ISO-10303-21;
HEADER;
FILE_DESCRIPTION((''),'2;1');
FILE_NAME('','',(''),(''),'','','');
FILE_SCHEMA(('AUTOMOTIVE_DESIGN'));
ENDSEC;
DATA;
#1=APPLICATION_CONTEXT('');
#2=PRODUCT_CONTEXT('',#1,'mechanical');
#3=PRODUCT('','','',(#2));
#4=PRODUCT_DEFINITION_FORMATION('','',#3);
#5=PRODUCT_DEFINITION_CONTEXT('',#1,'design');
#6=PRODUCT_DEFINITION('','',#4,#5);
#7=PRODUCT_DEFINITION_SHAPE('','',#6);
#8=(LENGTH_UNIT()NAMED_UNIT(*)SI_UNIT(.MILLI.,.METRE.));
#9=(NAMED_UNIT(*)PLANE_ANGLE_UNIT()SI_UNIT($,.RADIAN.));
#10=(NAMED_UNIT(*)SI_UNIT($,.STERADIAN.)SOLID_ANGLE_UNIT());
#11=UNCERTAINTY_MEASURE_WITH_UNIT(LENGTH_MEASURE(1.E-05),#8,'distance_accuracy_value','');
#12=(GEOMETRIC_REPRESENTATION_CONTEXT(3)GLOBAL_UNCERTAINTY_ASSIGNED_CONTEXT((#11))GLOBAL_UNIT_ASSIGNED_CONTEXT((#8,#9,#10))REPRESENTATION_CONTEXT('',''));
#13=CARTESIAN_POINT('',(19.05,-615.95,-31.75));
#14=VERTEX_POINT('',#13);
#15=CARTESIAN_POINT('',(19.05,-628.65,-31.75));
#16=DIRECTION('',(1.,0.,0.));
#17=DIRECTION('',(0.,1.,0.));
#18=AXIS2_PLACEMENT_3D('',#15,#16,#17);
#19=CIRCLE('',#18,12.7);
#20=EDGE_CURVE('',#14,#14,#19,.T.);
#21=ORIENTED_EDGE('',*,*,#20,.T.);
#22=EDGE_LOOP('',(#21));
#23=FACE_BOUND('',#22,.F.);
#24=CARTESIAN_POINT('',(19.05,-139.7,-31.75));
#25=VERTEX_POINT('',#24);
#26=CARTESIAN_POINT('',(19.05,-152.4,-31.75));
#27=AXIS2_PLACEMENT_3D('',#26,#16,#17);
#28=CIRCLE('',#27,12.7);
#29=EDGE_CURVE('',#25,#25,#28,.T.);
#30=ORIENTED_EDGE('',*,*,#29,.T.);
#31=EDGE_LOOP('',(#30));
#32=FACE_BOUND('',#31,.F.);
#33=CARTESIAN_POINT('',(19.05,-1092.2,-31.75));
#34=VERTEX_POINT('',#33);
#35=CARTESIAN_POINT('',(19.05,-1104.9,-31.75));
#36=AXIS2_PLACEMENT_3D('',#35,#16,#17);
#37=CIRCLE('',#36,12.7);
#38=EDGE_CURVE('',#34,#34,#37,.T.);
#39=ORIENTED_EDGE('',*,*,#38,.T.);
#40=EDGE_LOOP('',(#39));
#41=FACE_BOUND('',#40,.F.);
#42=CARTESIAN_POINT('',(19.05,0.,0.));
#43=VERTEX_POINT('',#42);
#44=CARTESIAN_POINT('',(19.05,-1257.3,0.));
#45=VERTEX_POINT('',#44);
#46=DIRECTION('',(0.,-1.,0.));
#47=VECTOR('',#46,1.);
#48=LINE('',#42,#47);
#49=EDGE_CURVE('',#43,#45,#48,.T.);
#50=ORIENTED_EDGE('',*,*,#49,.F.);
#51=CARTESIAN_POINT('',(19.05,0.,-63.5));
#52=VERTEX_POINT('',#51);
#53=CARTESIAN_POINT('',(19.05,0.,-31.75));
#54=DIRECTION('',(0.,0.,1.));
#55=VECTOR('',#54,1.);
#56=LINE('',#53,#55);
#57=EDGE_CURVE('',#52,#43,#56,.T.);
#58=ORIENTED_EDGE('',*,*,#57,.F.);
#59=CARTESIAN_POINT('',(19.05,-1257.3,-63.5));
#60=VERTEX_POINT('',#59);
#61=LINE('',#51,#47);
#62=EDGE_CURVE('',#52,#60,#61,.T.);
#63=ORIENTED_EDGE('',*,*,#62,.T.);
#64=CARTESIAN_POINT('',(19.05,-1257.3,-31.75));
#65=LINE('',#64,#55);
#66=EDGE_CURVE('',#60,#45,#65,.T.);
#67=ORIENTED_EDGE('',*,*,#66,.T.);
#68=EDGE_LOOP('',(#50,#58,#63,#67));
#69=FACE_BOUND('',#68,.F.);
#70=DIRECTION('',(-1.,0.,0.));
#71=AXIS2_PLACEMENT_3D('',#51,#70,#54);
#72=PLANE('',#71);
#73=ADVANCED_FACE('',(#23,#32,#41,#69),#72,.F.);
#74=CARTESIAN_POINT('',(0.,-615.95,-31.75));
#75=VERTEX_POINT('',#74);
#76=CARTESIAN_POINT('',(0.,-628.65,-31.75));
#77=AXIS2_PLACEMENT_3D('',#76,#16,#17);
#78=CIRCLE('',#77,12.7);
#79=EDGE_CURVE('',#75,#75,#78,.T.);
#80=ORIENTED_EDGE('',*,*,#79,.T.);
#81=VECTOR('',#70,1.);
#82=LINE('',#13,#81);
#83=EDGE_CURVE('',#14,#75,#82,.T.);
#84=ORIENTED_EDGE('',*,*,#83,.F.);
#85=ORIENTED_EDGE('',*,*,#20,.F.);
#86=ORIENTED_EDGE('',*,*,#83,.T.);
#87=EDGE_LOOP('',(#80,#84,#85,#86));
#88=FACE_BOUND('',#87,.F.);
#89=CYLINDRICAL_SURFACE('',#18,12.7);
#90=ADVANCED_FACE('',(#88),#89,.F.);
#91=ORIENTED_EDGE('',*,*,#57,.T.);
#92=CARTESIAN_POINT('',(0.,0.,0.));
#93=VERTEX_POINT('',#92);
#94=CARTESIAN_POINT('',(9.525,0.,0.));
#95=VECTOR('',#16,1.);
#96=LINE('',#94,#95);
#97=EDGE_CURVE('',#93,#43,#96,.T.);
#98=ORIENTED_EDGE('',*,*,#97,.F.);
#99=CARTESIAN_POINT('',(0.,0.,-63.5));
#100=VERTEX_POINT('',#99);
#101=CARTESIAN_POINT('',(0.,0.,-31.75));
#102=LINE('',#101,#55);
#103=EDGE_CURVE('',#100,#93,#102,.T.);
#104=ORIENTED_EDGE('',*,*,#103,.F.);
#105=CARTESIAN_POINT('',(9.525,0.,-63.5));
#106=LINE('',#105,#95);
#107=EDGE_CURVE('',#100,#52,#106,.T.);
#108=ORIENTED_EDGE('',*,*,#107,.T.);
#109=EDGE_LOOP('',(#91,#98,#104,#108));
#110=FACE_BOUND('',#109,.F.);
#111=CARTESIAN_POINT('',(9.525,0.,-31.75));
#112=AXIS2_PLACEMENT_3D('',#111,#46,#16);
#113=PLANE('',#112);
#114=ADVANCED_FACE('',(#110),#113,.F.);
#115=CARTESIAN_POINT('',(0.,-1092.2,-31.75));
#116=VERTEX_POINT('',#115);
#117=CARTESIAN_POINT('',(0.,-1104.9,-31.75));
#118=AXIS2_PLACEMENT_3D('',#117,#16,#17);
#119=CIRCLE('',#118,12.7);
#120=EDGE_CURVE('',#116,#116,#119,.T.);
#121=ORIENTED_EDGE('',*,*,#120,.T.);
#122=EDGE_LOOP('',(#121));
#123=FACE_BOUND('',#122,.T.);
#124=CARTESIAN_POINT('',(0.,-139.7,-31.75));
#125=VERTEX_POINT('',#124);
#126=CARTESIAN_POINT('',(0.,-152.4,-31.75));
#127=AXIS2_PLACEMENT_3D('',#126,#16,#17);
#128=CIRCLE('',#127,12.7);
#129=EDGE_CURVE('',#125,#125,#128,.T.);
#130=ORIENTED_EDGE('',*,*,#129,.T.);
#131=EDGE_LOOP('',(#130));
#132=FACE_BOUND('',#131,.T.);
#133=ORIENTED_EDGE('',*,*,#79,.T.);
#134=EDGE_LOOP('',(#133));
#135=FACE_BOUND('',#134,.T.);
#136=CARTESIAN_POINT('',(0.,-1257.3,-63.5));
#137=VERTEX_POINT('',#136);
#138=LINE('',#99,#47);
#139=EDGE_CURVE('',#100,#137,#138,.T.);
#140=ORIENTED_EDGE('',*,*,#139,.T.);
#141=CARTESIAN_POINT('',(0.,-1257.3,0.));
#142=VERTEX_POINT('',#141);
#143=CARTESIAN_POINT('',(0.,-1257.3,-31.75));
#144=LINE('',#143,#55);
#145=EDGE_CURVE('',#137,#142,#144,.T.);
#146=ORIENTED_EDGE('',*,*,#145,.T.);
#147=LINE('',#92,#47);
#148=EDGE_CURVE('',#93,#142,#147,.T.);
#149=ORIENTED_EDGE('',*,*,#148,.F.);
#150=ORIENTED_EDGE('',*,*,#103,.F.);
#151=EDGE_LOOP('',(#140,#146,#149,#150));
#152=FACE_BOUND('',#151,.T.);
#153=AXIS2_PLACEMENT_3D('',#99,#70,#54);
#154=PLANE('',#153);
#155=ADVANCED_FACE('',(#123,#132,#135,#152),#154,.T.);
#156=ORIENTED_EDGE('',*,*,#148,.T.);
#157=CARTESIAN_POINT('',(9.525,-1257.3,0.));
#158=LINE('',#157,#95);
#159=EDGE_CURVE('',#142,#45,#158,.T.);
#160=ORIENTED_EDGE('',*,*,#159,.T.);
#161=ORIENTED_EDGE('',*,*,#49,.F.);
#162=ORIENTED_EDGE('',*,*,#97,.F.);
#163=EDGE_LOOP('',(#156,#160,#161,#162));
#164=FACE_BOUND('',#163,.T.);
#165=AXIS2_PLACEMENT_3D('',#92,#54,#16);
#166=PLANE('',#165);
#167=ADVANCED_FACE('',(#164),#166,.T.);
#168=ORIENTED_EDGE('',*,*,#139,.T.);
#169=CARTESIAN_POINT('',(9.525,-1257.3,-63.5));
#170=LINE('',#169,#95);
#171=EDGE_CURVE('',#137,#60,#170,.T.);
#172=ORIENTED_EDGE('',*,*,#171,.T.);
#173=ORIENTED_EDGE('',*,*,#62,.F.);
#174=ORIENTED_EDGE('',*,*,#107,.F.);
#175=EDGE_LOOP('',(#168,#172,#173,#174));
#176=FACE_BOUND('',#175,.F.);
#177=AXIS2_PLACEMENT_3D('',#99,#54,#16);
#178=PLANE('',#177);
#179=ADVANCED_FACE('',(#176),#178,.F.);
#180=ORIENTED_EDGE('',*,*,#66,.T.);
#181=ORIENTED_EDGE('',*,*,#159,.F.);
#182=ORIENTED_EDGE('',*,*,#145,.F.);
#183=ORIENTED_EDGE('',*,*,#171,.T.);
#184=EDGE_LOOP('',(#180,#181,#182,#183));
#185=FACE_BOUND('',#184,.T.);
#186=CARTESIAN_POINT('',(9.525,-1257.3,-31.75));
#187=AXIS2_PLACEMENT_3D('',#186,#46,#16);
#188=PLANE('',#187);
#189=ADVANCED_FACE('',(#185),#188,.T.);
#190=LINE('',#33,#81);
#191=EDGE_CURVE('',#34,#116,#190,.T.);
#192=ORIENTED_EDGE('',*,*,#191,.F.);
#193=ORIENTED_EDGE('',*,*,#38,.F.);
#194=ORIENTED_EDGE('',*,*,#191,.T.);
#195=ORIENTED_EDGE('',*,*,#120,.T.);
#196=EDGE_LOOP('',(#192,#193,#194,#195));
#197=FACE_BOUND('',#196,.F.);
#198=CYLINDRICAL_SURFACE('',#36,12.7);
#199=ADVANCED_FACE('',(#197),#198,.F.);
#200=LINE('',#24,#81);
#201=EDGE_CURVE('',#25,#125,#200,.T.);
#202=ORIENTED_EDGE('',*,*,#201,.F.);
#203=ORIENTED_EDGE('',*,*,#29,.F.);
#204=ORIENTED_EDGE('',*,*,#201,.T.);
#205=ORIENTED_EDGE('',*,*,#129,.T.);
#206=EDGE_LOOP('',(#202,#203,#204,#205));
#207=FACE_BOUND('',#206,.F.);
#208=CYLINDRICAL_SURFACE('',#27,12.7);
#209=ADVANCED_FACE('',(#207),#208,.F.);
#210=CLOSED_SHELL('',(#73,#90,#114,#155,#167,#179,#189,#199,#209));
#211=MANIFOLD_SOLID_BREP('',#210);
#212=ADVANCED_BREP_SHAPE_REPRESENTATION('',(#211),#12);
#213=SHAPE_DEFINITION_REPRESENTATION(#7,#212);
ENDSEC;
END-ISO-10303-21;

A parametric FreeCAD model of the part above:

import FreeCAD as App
import Part
import Sketcher
from FreeCAD import Vector
Q = App.Units.Quantity


def add_polygon(sketch, points):
    """Adds a closed chain of lines whose ends are joined by coincident constraints."""
    first, n = sketch.GeometryCount, len(points)
    for a, b in zip(points, points[1:] + points[:1]):
        sketch.addGeometry(Part.LineSegment(App.Vector(*a, 0), App.Vector(*b, 0)), False)
    for i in range(n):
        sketch.addConstraint(Sketcher.Constraint("Coincident", first + i, 2, first + (i + 1) % n, 1))

doc = App.newDocument("Part")
body = doc.addObject("PartDesign::Body", "Body")

# Sketch on XZ plane
sketch1 = body.newObject("Sketcher::SketchObject", "Sketch")
sketch1.AttachmentSupport = (doc.getObject("XZ_Plane"), [""])
sketch1.MapMode = "FlatFace"
add_polygon(sketch1, [(0, 0), (0, -64), (19, -64), (19, 0)])  # lines 0-3
sketch1.addConstraint([
    Sketcher.Constraint("Vertical", 0),
    Sketcher.Constraint("Horizontal", 1),
    Sketcher.Constraint("Vertical", 2),
    Sketcher.Constraint("Horizontal", 3),
    Sketcher.Constraint("Coincident", 3, 2, -1, 1),
    Sketcher.Constraint("DistanceY", 0, 2, 0, 1, Q("2.5 in")),
    Sketcher.Constraint("DistanceX", 1, 1, 1, 2, Q("0.75 in")),
])
pad1 = body.newObject("PartDesign::Pad", "Pad")
pad1.Profile = sketch1
pad1.Length = Q("49.5 in")

# Sketch on YZ plane
sketch2 = body.newObject("Sketcher::SketchObject", "Sketch001")
sketch2.AttachmentSupport = (doc.getObject("YZ_Plane"), [""])
sketch2.MapMode = "FlatFace"
sketch2.AttachmentOffset = App.Placement(Vector(0, 0, 0.75 * 25.4), App.Rotation())
sketch2.addGeometry([
    Part.Circle(Vector(-1105, -32, 0), Vector(0, 0, 1), 13),
    Part.Circle(Vector(-629, -32, 0), Vector(0, 0, 1), 13),
    Part.Circle(Vector(-152, -32, 0), Vector(0, 0, 1), 13),
], False)
sketch2.addConstraint([
    Sketcher.Constraint("Equal", 0, 1),
    Sketcher.Constraint("Equal", 1, 2),
    Sketcher.Constraint("Horizontal", 0, 3, 1, 3),
    Sketcher.Constraint("Horizontal", 1, 3, 2, 3),
    Sketcher.Constraint("Diameter", 0, Q("1 in")),
    Sketcher.Constraint("DistanceX", 2, 3, -1, 1, Q("6 in")),
    Sketcher.Constraint("DistanceX", 0, 3, -1, 1, Q("43.5 in")),
    Sketcher.Constraint("DistanceY", 0, 3, -1, 1, Q("1.25 in")),
    Sketcher.Constraint("DistanceX", 1, 3, -1, 1, Q("24.75 in")),
])
pocket1 = body.newObject("PartDesign::Pocket", "Pocket")
pocket1.Profile = sketch2
pocket1.Type = "ThroughAll"

doc.recompute()
